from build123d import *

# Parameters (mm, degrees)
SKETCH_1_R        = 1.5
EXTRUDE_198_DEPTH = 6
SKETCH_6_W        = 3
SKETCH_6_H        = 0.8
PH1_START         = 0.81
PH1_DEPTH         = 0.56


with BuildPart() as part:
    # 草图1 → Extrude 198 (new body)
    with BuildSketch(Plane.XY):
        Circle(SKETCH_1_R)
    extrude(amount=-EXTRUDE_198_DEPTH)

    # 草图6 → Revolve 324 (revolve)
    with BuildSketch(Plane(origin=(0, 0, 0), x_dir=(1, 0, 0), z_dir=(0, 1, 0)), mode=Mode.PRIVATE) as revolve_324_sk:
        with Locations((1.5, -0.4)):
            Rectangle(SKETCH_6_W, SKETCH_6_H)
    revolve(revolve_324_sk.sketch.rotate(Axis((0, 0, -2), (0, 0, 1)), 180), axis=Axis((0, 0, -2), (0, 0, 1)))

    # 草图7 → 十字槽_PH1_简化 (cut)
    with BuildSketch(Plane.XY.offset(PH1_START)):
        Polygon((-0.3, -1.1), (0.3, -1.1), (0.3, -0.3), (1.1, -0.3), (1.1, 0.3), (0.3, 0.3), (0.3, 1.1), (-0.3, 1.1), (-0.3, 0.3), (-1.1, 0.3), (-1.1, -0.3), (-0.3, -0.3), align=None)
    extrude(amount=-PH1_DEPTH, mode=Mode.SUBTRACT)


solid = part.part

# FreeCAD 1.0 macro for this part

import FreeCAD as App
import Part
import Sketcher
Q = App.Units.Quantity


def add_polygon(sketch, points):
    """Adds a closed chain of lines whose ends are joined by coincident constraints."""
    first, n = sketch.GeometryCount, len(points)
    for a, b in zip(points, points[1:] + points[:1]):
        sketch.addGeometry(Part.LineSegment(App.Vector(*a, 0), App.Vector(*b, 0)), False)
    for i in range(n):
        sketch.addConstraint(Sketcher.Constraint("Coincident", first + i, 2, first + (i + 1) % n, 1))

doc = App.newDocument("Part")
body = doc.addObject("PartDesign::Body", "Body")

# Sketch on XY plane
sketch1 = body.newObject("Sketcher::SketchObject", "Sketch")
sketch1.AttachmentSupport = (doc.getObject("XY_Plane"), [""])
sketch1.MapMode = "FlatFace"
sketch1.addGeometry(Part.Circle(App.Vector(0, 0, 0), App.Vector(0, 0, 1), 1.5), False)
sketch1.addConstraint(Sketcher.Constraint("Coincident", 0, 3, -1, 1))
sketch1.addConstraint(Sketcher.Constraint("Diameter", 0, Q("3 mm")))
pad1 = body.newObject("PartDesign::Pad", "Pad")
pad1.Profile = sketch1
pad1.Length = 6
pad1.Reversed = True

# Sketch on XZ plane
sketch2 = body.newObject("Sketcher::SketchObject", "Sketch001")
sketch2.AttachmentSupport = (doc.getObject("XZ_Plane"), [""])
sketch2.MapMode = "FlatFace"
add_polygon(sketch2, [(0, 0), (0, 0.8), (3, 0.8), (3, 0)])  # lines 0-3
sketch2.addConstraint(Sketcher.Constraint("Vertical", 0))
sketch2.addConstraint(Sketcher.Constraint("Horizontal", 1))
sketch2.addConstraint(Sketcher.Constraint("Vertical", 2))
sketch2.addConstraint(Sketcher.Constraint("Horizontal", 3))
sketch2.addConstraint(Sketcher.Constraint("Coincident", 3, 2, -1, 1))
sketch2.addConstraint(Sketcher.Constraint("DistanceX", 1, 1, 1, 2, Q("3 mm")))
sketch2.addConstraint(Sketcher.Constraint("DistanceY", 0, 1, 0, 2, Q("0.8 mm")))
revolution = body.newObject("PartDesign::Revolution", "Revolution")
revolution.Profile = sketch2
revolution.ReferenceAxis = (sketch2, ["V_Axis"])
revolution.Angle = 360

# Sketch on XY plane
sketch3 = body.newObject("Sketcher::SketchObject", "Sketch002")
sketch3.AttachmentSupport = (doc.getObject("XY_Plane"), [""])
sketch3.MapMode = "FlatFace"
sketch3.AttachmentOffset = App.Placement(App.Vector(0, 0, 0.81), App.Rotation())
add_polygon(sketch3, [(-0.3, -1.1), (0.3, -1.1), (0.3, -0.3), (1.1, -0.3), (1.1, 0.3), (0.3, 0.3), (0.3, 1.1), (-0.3, 1.1), (-0.3, 0.3), (-1.1, 0.3), (-1.1, -0.3), (-0.3, -0.3)])  # lines 0-11
sketch3.addConstraint(Sketcher.Constraint("Horizontal", 0))
sketch3.addConstraint(Sketcher.Constraint("Vertical", 1))
sketch3.addConstraint(Sketcher.Constraint("Horizontal", 2))
sketch3.addConstraint(Sketcher.Constraint("Vertical", 3))
sketch3.addConstraint(Sketcher.Constraint("Horizontal", 4))
sketch3.addConstraint(Sketcher.Constraint("Vertical", 5))
sketch3.addConstraint(Sketcher.Constraint("Horizontal", 6))
sketch3.addConstraint(Sketcher.Constraint("Vertical", 7))
sketch3.addConstraint(Sketcher.Constraint("Horizontal", 8))
sketch3.addConstraint(Sketcher.Constraint("Vertical", 9))
sketch3.addConstraint(Sketcher.Constraint("Horizontal", 10))
sketch3.addConstraint(Sketcher.Constraint("Vertical", 11))
sketch3.addConstraint(Sketcher.Constraint("Symmetric", 0, 2, 6, 2, -1, 1))
sketch3.addConstraint(Sketcher.Constraint("Symmetric", 2, 2, 8, 2, -1, 1))
sketch3.addConstraint(Sketcher.Constraint("Symmetric", 4, 2, 10, 2, -1, 1))
sketch3.addConstraint(Sketcher.Constraint("Symmetric", 4, 2, 7, 2, -2))
sketch3.addConstraint(Sketcher.Constraint("Equal", 10, 1))
sketch3.addConstraint(Sketcher.Constraint("Equal", 6, 3))
sketch3.addConstraint(Sketcher.Constraint("DistanceX", 0, 1, 0, 2, Q("0.6 mm")))
sketch3.addConstraint(Sketcher.Constraint("DistanceX", 2, 1, 2, 2, Q("0.8 mm")))
pocket1 = body.newObject("PartDesign::Pocket", "Pocket")
pocket1.Profile = sketch3
pocket1.Length = 0.56

doc.recompute()
